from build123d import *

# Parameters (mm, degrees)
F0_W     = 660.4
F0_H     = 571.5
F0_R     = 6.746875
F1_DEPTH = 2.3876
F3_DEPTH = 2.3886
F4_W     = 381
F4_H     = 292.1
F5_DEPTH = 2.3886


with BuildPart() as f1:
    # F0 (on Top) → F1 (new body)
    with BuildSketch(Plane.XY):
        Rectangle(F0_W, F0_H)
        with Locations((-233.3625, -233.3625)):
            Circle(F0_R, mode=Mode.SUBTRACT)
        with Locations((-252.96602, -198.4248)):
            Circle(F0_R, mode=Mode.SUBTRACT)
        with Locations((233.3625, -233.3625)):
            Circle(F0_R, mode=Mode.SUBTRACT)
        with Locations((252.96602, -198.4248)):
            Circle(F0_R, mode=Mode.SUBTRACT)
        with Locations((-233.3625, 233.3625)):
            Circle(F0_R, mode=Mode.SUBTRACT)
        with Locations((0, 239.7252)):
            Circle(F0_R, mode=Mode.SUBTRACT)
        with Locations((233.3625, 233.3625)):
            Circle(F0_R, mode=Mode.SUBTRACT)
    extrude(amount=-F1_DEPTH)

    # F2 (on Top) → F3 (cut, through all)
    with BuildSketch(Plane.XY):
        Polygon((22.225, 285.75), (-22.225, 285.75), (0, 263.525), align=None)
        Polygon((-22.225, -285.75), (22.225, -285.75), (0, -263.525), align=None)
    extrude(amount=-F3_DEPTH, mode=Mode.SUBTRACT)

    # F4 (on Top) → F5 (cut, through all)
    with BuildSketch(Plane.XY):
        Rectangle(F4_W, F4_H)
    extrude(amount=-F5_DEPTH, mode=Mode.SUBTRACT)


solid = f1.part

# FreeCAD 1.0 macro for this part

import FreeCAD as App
import Part
import Sketcher
from FreeCAD import Vector
Q = App.Units.Quantity

doc = App.newDocument("Part")
body = doc.addObject("PartDesign::Body", "Body")

# Sketch on XY plane
sketch1 = doc.addObject("Sketcher::SketchObject", "Sketch")
body.addObject(sketch1)
sketch1.AttachmentSupport = (doc.XY_Plane, [""])
sketch1.MapMode = "FlatFace"
sketch1.addGeometry(Part.LineSegment(Vector(-330, 286, 0), Vector(-330, -286, 0)), False)
sketch1.addGeometry(Part.LineSegment(Vector(-330, -286, 0), Vector(330, -286, 0)), False)
sketch1.addGeometry(Part.LineSegment(Vector(330, -286, 0), Vector(330, 286, 0)), False)
sketch1.addGeometry(Part.LineSegment(Vector(330, 286, 0), Vector(-330, 286, 0)), False)
sketch1.addGeometry(Part.Circle(Vector(-233, -233, 0), Vector(0, 0, 1), 7), False)
sketch1.addGeometry(Part.Circle(Vector(-253, -198, 0), Vector(0, 0, 1), 7), False)
sketch1.addGeometry(Part.Circle(Vector(233, -233, 0), Vector(0, 0, 1), 7), False)
sketch1.addGeometry(Part.Circle(Vector(253, -198, 0), Vector(0, 0, 1), 7), False)
sketch1.addGeometry(Part.Circle(Vector(-233, 233, 0), Vector(0, 0, 1), 7), False)
sketch1.addGeometry(Part.Circle(Vector(0, 240, 0), Vector(0, 0, 1), 7), False)
sketch1.addGeometry(Part.Circle(Vector(233, 233, 0), Vector(0, 0, 1), 7), False)
sketch1.addConstraint(Sketcher.Constraint("Coincident", 0, 2, 1, 1))
sketch1.addConstraint(Sketcher.Constraint("Coincident", 1, 2, 2, 1))
sketch1.addConstraint(Sketcher.Constraint("Coincident", 2, 2, 3, 1))
sketch1.addConstraint(Sketcher.Constraint("Coincident", 3, 2, 0, 1))
sketch1.addConstraint(Sketcher.Constraint("Vertical", 0))
sketch1.addConstraint(Sketcher.Constraint("Horizontal", 1))
sketch1.addConstraint(Sketcher.Constraint("Vertical", 2))
sketch1.addConstraint(Sketcher.Constraint("Horizontal", 3))
sketch1.addConstraint(Sketcher.Constraint("Equal", 4, 5))
sketch1.addConstraint(Sketcher.Constraint("Equal", 5, 6))
sketch1.addConstraint(Sketcher.Constraint("Equal", 6, 7))
sketch1.addConstraint(Sketcher.Constraint("Equal", 7, 8))
sketch1.addConstraint(Sketcher.Constraint("Equal", 8, 9))
sketch1.addConstraint(Sketcher.Constraint("Equal", 9, 10))
sketch1.addConstraint(Sketcher.Constraint("Symmetric", 6, 3, 8, 3, -1, 1))
sketch1.addConstraint(Sketcher.Constraint("Symmetric", 4, 3, 10, 3, -1, 1))
sketch1.addConstraint(Sketcher.Constraint("Symmetric", 0, 2, 2, 2, -1, 1))
sketch1.addConstraint(Sketcher.Constraint("Symmetric", 4, 3, 6, 3, -2))
sketch1.addConstraint(Sketcher.Constraint("Symmetric", 5, 3, 7, 3, -2))
sketch1.addConstraint(Sketcher.Constraint("PointOnObject", 9, 3, -2))
sketch1.addConstraint(Sketcher.Constraint("DistanceX", 1, 1, 1, 2, Q("26 in")))
sketch1.addConstraint(Sketcher.Constraint("Diameter", 4, Q("0.53125 in")))
sketch1.addConstraint(Sketcher.Constraint("DistanceY", 0, 2, 0, 1, Q("22.5 in")))
sketch1.addConstraint(Sketcher.Constraint("DistanceY", 5, 3, 9, 3, Q("17.25 in")))
sketch1.addConstraint(Sketcher.Constraint("DistanceX", 4, 3, -1, 1, Q("9.1875 in")))
sketch1.addConstraint(Sketcher.Constraint("DistanceY", 4, 3, -1, 1, Q("9.1875 in")))
sketch1.addConstraint(Sketcher.Constraint("DistanceY", 5, 3, -1, 1, Q("7.812 in")))
sketch1.addConstraint(Sketcher.Constraint("DistanceX", 5, 3, -1, 1, 252.96602))
pad1 = doc.addObject("PartDesign::Pad", "Pad")
body.addObject(pad1)
pad1.Profile = sketch1
pad1.Length = Q("0.094 in")
pad1.Reversed = True

# Sketch on XY plane
sketch2 = doc.addObject("Sketcher::SketchObject", "Sketch001")
body.addObject(sketch2)
sketch2.AttachmentSupport = (doc.XY_Plane, [""])
sketch2.MapMode = "FlatFace"
sketch2.addGeometry(Part.LineSegment(Vector(22, 286, 0), Vector(-22, 286, 0)), False)
sketch2.addGeometry(Part.LineSegment(Vector(-22, 286, 0), Vector(0, 264, 0)), False)
sketch2.addGeometry(Part.LineSegment(Vector(0, 264, 0), Vector(22, 286, 0)), False)
sketch2.addGeometry(Part.LineSegment(Vector(-22, -286, 0), Vector(22, -286, 0)), False)
sketch2.addGeometry(Part.LineSegment(Vector(22, -286, 0), Vector(0, -264, 0)), False)
sketch2.addGeometry(Part.LineSegment(Vector(0, -264, 0), Vector(-22, -286, 0)), False)
sketch2.addConstraint(Sketcher.Constraint("Coincident", 0, 2, 1, 1))
sketch2.addConstraint(Sketcher.Constraint("Coincident", 1, 2, 2, 1))
sketch2.addConstraint(Sketcher.Constraint("Coincident", 2, 2, 0, 1))
sketch2.addConstraint(Sketcher.Constraint("Coincident", 3, 2, 4, 1))
sketch2.addConstraint(Sketcher.Constraint("Coincident", 4, 2, 5, 1))
sketch2.addConstraint(Sketcher.Constraint("Coincident", 5, 2, 3, 1))
sketch2.addConstraint(Sketcher.Constraint("Horizontal", 0))
sketch2.addConstraint(Sketcher.Constraint("Horizontal", 3))
sketch2.addConstraint(Sketcher.Constraint("Symmetric", 0, 2, 3, 2, -1, 1))
sketch2.addConstraint(Sketcher.Constraint("Symmetric", 1, 2, 4, 2, -1, 1))
sketch2.addConstraint(Sketcher.Constraint("PointOnObject", 1, 2, -2))
sketch2.addConstraint(Sketcher.Constraint("Perpendicular", 1, 2))
sketch2.addConstraint(Sketcher.Constraint("Perpendicular", 4, 5))
sketch2.addConstraint(Sketcher.Constraint("Vertical", 2, 2, 3, 2))
sketch2.addConstraint(Sketcher.Constraint("DistanceX", 0, 2, 0, 1, Q("1.75 in")))
sketch2.addConstraint(Sketcher.Constraint("DistanceY", 3, 2, 2, 2, Q("22.5 in")))
pocket1 = doc.addObject("PartDesign::Pocket", "Pocket")
body.addObject(pocket1)
pocket1.Profile = sketch2
pocket1.Type = "ThroughAll"

# Sketch on XY plane
sketch3 = doc.addObject("Sketcher::SketchObject", "Sketch002")
body.addObject(sketch3)
sketch3.AttachmentSupport = (doc.XY_Plane, [""])
sketch3.MapMode = "FlatFace"
sketch3.addGeometry(Part.LineSegment(Vector(-190, 146, 0), Vector(-190, -146, 0)), False)
sketch3.addGeometry(Part.LineSegment(Vector(-190, -146, 0), Vector(190, -146, 0)), False)
sketch3.addGeometry(Part.LineSegment(Vector(190, -146, 0), Vector(190, 146, 0)), False)
sketch3.addGeometry(Part.LineSegment(Vector(190, 146, 0), Vector(-190, 146, 0)), False)
sketch3.addConstraint(Sketcher.Constraint("Coincident", 0, 2, 1, 1))
sketch3.addConstraint(Sketcher.Constraint("Coincident", 1, 2, 2, 1))
sketch3.addConstraint(Sketcher.Constraint("Coincident", 2, 2, 3, 1))
sketch3.addConstraint(Sketcher.Constraint("Coincident", 3, 2, 0, 1))
sketch3.addConstraint(Sketcher.Constraint("Vertical", 0))
sketch3.addConstraint(Sketcher.Constraint("Horizontal", 1))
sketch3.addConstraint(Sketcher.Constraint("Vertical", 2))
sketch3.addConstraint(Sketcher.Constraint("Horizontal", 3))
sketch3.addConstraint(Sketcher.Constraint("Symmetric", 0, 2, 2, 2, -1, 1))
sketch3.addConstraint(Sketcher.Constraint("DistanceX", 1, 1, 1, 2, Q("15 in")))
sketch3.addConstraint(Sketcher.Constraint("DistanceY", 0, 2, 0, 1, Q("11.5 in")))
pocket2 = doc.addObject("PartDesign::Pocket", "Pocket001")
body.addObject(pocket2)
pocket2.Profile = sketch3
pocket2.Type = "ThroughAll"

doc.recompute()
